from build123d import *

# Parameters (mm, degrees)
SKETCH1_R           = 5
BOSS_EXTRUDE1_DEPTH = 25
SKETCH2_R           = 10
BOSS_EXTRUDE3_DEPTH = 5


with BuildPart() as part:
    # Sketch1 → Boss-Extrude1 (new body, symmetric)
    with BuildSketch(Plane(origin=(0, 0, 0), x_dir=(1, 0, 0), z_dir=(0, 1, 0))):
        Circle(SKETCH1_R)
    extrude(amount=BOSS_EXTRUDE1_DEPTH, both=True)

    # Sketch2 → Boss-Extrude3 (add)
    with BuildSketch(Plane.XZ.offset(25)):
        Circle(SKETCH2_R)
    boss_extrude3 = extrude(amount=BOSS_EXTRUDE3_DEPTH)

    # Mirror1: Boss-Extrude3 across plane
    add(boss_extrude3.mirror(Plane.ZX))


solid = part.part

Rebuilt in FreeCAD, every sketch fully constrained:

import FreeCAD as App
import Part
import Sketcher

V = App.Vector

doc = App.newDocument("Part")
params = doc.addObject("Spreadsheet::Sheet", "Params")
for row, (alias, value) in enumerate([
    ("sketch1_diameter", "10 mm"),
    ("pad1_length", "50 mm"),
    ("sketch2_diameter", "20 mm"),
    ("pad2_length", "5 mm"),
], start=1):
    params.set(f"A{row}", alias)
    params.set(f"B{row}", "=" + value)
    params.setAlias(f"B{row}", alias)

body = doc.addObject("PartDesign::Body", "Body")

sketch1 = body.newObject("Sketcher::SketchObject", "Sketch")
sketch1.AttachmentSupport = (doc.getObject("XZ_Plane"), [""])
sketch1.MapMode = "FlatFace"
sketch1.addGeometry(Part.Circle(V(0, 0, 0), V(0, 0, 1), 5), False)
sketch1.addConstraint(Sketcher.Constraint("Coincident", 0, 3, -1, 1))
sketch1.addConstraint(Sketcher.Constraint("Diameter", 0, 10.0))
sketch1.setExpression("Constraints[1]", "Params.sketch1_diameter")
pad1 = body.newObject("PartDesign::Pad", "Pad")
pad1.Profile = sketch1
pad1.setExpression("Length", "Params.pad1_length")
pad1.Midplane = True

sketch2 = body.newObject("Sketcher::SketchObject", "Sketch001")
sketch2.AttachmentSupport = (doc.getObject("XZ_Plane"), [""])
sketch2.MapMode = "FlatFace"
sketch2.AttachmentOffset = App.Placement(V(0, 0, 25), App.Rotation())
sketch2.addGeometry(Part.Circle(V(0, 0, 0), V(0, 0, 1), 10), False)
sketch2.addConstraint(Sketcher.Constraint("Coincident", 0, 3, -1, 1))
sketch2.addConstraint(Sketcher.Constraint("Diameter", 0, 20.0))
sketch2.setExpression("Constraints[1]", "Params.sketch2_diameter")
pad2 = body.newObject("PartDesign::Pad", "Pad001")
pad2.Profile = sketch2
pad2.setExpression("Length", "Params.pad2_length")
doc.recompute()

mirrored = body.newObject("PartDesign::Mirrored", "Mirrored")
mirrored.Originals = [pad2]
mirrored.MirrorPlane = (doc.getObject("XZ_Plane"), [""])
body.Tip = mirrored

doc.recompute()
